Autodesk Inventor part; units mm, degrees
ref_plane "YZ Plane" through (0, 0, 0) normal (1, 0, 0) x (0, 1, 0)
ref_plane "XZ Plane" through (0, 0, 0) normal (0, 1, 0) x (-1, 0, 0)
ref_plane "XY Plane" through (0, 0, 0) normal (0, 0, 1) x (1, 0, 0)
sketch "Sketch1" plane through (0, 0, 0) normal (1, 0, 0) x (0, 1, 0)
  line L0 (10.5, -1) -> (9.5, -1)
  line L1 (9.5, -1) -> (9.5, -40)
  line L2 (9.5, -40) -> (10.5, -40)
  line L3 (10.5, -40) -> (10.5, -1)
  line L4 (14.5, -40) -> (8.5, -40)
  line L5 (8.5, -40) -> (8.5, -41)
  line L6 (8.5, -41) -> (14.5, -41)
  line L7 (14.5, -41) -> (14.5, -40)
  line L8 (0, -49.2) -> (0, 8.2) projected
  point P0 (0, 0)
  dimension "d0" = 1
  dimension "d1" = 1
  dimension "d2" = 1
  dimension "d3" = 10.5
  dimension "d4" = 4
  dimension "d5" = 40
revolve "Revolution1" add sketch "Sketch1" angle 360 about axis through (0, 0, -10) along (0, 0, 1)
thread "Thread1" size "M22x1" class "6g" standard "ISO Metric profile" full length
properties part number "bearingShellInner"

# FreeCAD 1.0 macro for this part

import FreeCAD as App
import Part
import Sketcher

V = App.Vector
Q = App.Units.Quantity

doc = App.newDocument("Part")
body = doc.addObject("PartDesign::Body", "Body")

# Sketch on YZ plane
sketch1 = doc.addObject("Sketcher::SketchObject", "Sketch")
body.addObject(sketch1)
sketch1.AttachmentSupport = (doc.YZ_Plane, [""])
sketch1.MapMode = "FlatFace"
sketch1.addGeometry([
    Part.LineSegment(V(10.5, -40, 0), V(10.5, -1, 0)),  # 0
    Part.LineSegment(V(10.5, -1, 0), V(9.5, -1, 0)),  # 1
    Part.LineSegment(V(9.5, -1, 0), V(9.5, -40, 0)),  # 2
    Part.LineSegment(V(9.5, -40, 0), V(8.5, -40, 0)),  # 3
    Part.LineSegment(V(8.5, -40, 0), V(8.5, -41, 0)),  # 4
    Part.LineSegment(V(8.5, -41, 0), V(14.5, -41, 0)),  # 5
    Part.LineSegment(V(14.5, -41, 0), V(14.5, -40, 0)),  # 6
    Part.LineSegment(V(14.5, -40, 0), V(10.5, -40, 0)),  # 7
], False)
sketch1.addConstraint([
    Sketcher.Constraint("Coincident", 0, 2, 1, 1),
    Sketcher.Constraint("Coincident", 1, 2, 2, 1),
    Sketcher.Constraint("Coincident", 2, 2, 3, 1),
    Sketcher.Constraint("Coincident", 3, 2, 4, 1),
    Sketcher.Constraint("Coincident", 4, 2, 5, 1),
    Sketcher.Constraint("Coincident", 5, 2, 6, 1),
    Sketcher.Constraint("Coincident", 6, 2, 7, 1),
    Sketcher.Constraint("Coincident", 7, 2, 0, 1),
    Sketcher.Constraint("Vertical", 0),
    Sketcher.Constraint("Horizontal", 1),
    Sketcher.Constraint("Vertical", 2),
    Sketcher.Constraint("Horizontal", 3),
    Sketcher.Constraint("Vertical", 4),
    Sketcher.Constraint("Horizontal", 5),
    Sketcher.Constraint("Vertical", 6),
    Sketcher.Constraint("Horizontal", 7),
    Sketcher.Constraint("Horizontal", 3, 2, 6, 2),
    Sketcher.Constraint("Equal", 1, 3),
    Sketcher.Constraint("Equal", 3, 4),
    Sketcher.Constraint("DistanceX", 1, 2, 1, 1, Q("1 mm")),
    Sketcher.Constraint("DistanceX", 7, 2, 7, 1, Q("4 mm")),
    Sketcher.Constraint("DistanceY", 0, 2, -1, 1, Q("1 mm")),
    Sketcher.Constraint("DistanceY", 2, 2, -1, 1, Q("40 mm")),
    Sketcher.Constraint("DistanceX", -1, 1, 0, 2, Q("10.5 mm")),
])
revolution = doc.addObject("PartDesign::Revolution", "Revolution")
body.addObject(revolution)
revolution.Profile = sketch1
revolution.ReferenceAxis = (sketch1, ["V_Axis"])
revolution.Angle = 360

doc.recompute()
